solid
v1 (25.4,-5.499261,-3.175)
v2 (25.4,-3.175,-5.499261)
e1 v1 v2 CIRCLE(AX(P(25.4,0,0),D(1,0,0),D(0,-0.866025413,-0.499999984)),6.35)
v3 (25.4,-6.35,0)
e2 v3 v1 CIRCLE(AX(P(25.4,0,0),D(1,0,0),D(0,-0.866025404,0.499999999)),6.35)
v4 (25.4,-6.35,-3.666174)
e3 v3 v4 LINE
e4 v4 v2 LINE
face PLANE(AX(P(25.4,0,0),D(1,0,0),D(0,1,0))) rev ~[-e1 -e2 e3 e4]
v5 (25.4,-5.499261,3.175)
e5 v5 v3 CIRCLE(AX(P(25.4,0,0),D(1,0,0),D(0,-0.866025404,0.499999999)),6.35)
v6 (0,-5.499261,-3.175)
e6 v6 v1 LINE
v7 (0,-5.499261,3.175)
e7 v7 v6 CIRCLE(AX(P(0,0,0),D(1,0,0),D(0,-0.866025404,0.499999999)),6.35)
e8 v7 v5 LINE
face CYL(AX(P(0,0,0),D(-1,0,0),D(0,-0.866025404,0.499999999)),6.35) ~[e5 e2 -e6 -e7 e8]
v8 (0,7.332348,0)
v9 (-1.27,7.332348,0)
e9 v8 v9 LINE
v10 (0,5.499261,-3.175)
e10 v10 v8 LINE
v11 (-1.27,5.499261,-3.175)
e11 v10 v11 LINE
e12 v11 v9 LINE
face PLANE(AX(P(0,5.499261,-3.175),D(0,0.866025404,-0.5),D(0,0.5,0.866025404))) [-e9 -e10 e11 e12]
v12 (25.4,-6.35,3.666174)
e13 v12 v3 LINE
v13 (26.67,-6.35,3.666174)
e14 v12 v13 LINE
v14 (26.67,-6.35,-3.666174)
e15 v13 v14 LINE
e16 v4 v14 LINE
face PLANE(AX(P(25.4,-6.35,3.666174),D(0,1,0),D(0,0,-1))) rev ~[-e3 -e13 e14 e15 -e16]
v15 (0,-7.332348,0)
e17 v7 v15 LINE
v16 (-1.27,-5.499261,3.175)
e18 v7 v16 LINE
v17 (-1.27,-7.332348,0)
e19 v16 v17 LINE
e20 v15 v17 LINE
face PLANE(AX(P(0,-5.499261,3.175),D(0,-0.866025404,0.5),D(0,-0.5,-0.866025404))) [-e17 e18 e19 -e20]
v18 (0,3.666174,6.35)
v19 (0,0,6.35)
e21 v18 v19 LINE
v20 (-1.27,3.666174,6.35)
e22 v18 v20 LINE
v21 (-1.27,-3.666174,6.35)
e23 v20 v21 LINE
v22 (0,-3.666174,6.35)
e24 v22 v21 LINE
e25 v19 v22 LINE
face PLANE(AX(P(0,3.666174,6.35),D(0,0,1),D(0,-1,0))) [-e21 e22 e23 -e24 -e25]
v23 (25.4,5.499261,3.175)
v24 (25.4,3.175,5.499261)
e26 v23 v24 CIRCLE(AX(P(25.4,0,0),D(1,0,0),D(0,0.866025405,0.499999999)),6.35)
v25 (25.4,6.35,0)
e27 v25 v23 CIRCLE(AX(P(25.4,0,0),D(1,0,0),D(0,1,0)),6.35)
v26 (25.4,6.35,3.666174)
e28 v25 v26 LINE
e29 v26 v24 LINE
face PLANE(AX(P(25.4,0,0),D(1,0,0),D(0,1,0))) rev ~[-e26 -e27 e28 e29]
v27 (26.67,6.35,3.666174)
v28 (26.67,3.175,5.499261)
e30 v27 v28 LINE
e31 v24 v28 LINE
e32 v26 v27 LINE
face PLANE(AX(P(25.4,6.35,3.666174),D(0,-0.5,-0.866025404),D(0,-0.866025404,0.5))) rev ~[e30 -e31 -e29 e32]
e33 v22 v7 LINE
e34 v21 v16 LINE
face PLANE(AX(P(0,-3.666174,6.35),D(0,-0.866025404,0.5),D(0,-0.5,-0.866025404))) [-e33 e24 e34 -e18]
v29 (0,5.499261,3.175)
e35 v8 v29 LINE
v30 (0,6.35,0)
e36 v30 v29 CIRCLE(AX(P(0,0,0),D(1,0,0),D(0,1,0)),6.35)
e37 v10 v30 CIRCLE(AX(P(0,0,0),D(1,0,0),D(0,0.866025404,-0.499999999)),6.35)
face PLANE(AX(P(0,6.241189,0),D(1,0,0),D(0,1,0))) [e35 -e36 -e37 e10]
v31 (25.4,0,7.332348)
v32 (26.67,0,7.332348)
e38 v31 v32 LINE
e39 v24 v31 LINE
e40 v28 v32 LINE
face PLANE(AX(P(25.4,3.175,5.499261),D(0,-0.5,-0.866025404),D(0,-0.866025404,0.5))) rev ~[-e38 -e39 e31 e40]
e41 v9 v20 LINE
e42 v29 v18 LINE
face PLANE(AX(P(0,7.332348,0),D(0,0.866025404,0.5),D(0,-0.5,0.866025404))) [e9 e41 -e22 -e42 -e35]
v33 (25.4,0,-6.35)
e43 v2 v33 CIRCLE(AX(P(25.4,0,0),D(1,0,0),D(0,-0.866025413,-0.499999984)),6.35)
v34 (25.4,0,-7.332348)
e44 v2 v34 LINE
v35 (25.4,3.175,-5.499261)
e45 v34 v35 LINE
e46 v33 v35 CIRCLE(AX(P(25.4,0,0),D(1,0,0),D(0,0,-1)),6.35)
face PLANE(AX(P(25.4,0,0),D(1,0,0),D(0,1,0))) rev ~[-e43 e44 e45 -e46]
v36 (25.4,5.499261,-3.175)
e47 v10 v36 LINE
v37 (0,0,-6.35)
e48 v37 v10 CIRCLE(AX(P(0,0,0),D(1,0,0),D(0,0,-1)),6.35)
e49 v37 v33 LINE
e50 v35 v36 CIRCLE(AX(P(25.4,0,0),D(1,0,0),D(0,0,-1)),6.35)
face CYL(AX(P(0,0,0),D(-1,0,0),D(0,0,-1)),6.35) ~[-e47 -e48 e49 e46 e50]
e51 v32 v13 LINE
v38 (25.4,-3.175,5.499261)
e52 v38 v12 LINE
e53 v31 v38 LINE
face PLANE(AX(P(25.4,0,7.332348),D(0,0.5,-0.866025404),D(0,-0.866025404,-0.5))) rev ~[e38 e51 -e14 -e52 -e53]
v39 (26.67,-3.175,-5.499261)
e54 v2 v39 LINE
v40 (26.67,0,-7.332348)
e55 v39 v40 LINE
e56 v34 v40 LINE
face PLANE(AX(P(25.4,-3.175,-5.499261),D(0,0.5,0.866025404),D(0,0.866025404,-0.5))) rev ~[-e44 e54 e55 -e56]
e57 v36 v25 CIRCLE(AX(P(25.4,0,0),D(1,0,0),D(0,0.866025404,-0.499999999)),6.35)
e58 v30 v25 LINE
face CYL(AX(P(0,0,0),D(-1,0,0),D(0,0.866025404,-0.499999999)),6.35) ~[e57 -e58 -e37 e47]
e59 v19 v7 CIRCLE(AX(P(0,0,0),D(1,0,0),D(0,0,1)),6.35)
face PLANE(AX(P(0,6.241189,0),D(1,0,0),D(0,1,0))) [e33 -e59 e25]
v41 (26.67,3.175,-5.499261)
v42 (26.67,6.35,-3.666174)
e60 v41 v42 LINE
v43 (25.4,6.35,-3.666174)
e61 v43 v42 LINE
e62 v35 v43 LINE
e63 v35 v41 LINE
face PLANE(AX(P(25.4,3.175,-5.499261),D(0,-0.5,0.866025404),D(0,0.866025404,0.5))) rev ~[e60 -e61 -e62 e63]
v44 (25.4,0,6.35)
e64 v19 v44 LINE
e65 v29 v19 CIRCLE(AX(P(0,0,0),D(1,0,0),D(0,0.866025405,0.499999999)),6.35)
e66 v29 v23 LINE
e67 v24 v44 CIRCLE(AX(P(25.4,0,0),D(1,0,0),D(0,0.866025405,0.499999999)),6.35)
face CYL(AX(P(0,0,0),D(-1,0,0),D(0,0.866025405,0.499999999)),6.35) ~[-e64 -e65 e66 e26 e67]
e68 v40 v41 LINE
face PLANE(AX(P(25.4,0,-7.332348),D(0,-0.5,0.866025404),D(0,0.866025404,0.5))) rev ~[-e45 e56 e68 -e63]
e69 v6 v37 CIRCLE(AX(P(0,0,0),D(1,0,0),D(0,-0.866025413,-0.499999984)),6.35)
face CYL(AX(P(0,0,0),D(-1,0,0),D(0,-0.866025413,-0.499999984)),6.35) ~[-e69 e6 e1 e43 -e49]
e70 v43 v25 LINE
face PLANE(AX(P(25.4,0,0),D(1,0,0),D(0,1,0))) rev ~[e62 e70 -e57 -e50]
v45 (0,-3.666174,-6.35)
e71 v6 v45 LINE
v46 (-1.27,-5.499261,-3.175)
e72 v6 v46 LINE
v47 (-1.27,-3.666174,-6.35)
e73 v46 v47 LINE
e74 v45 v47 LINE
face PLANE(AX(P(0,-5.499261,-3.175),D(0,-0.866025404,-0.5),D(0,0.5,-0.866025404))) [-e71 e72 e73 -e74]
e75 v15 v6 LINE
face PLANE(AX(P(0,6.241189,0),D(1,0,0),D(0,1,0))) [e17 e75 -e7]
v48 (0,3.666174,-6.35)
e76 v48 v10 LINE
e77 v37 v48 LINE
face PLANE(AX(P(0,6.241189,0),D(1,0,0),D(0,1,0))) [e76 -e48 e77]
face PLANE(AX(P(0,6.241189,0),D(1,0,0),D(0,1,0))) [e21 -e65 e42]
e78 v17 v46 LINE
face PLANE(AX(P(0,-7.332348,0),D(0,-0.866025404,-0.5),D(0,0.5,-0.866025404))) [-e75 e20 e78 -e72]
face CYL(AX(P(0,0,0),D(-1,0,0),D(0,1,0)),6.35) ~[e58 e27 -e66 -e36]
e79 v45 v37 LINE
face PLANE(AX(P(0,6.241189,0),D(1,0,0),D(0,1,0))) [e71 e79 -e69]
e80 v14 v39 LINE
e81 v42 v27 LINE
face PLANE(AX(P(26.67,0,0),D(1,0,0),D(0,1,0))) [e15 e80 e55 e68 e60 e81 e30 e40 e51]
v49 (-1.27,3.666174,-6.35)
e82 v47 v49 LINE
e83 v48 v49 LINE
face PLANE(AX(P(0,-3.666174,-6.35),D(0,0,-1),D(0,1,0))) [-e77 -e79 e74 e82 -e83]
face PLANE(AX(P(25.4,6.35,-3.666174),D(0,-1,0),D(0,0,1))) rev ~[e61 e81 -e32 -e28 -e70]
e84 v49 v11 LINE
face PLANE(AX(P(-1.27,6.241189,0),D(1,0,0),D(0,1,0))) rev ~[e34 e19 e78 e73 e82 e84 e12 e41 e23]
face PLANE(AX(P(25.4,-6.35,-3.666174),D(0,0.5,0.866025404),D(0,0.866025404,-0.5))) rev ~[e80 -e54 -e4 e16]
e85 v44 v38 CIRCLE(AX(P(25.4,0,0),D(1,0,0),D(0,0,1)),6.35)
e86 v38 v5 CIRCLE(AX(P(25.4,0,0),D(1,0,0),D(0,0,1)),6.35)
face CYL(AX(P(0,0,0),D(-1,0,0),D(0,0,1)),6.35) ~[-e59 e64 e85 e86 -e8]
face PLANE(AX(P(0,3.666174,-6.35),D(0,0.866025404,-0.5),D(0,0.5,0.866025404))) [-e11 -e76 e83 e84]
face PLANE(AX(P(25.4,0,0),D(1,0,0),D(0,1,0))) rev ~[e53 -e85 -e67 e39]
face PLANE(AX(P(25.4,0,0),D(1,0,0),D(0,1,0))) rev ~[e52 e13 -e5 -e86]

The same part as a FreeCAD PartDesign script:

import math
import FreeCAD as App
import Part
import Sketcher
from FreeCAD import Vector
Q = App.Units.Quantity


def add_polygon(sketch, points):
    """Adds a closed chain of lines whose ends are joined by coincident constraints."""
    first, n = sketch.GeometryCount, len(points)
    for a, b in zip(points, points[1:] + points[:1]):
        sketch.addGeometry(Part.LineSegment(App.Vector(*a, 0), App.Vector(*b, 0)), False)
    for i in range(n):
        sketch.addConstraint(Sketcher.Constraint("Coincident", first + i, 2, first + (i + 1) % n, 1))

doc = App.newDocument("Part")
params = doc.addObject("Spreadsheet::Sheet", "Params")
for row, (alias, value) in enumerate([
    ("sketch1_radius", "0.25 in"),
    ("pad1_length", "1 in"),
    ("pad2_length", "0.05 in"),
    ("pad3_length", "0.05 in"),
], start=1):
    params.set(f"A{row}", alias)
    params.set(f"B{row}", "=" + value)
    params.setAlias(f"B{row}", alias)

body = doc.addObject("PartDesign::Body", "Body")

# Sketch on YZ plane
sketch1 = body.newObject("Sketcher::SketchObject", "Sketch")
sketch1.AttachmentSupport = (doc.getObject("YZ_Plane"), [""])
sketch1.MapMode = "FlatFace"
sketch1.addGeometry([
    Part.ArcOfCircle(Part.Circle(Vector(0, 0, 0), Vector(0, 0, 1), 6.4), math.radians(-30), math.radians(0)),  # 0
    Part.ArcOfCircle(Part.Circle(Vector(0, 0, 0), Vector(0, 0, 1), 6.3), math.radians(0), math.radians(30)),  # 1
    Part.ArcOfCircle(Part.Circle(Vector(0, 0, 0), Vector(0, 0, 1), 6.3), math.radians(30), math.radians(90)),  # 2
    Part.ArcOfCircle(Part.Circle(Vector(0, 0, 0), Vector(0, 0, 1), 6.3), math.radians(90), math.radians(150)),  # 3
    Part.ArcOfCircle(Part.Circle(Vector(0, 0, 0), Vector(0, 0, 1), 6.3), math.radians(150), math.radians(210)),  # 4
    Part.ArcOfCircle(Part.Circle(Vector(0, 0, 0), Vector(0, 0, 1), 6.3), math.radians(-150), math.radians(-90)),  # 5
    Part.ArcOfCircle(Part.Circle(Vector(0, 0, 0), Vector(0, 0, 1), 6.3), math.radians(-90), math.radians(-30)),  # 6
], False)
sketch1.addConstraint([
    Sketcher.Constraint("Tangent", 0, 2, 1, 1),
    Sketcher.Constraint("Tangent", 1, 2, 2, 1),
    Sketcher.Constraint("Tangent", 2, 2, 3, 1),
    Sketcher.Constraint("Tangent", 3, 2, 4, 1),
    Sketcher.Constraint("Tangent", 4, 2, 5, 1),
    Sketcher.Constraint("Tangent", 5, 2, 6, 1),
    Sketcher.Constraint("Tangent", 6, 2, 0, 1),
    Sketcher.Constraint("Coincident", 0, 3, -1, 1),
    Sketcher.Constraint("Coincident", 2, 3, -1, 1),
    Sketcher.Constraint("Coincident", 4, 3, -1, 1),
    Sketcher.Constraint("PointOnObject", 0, 2, -1),
    Sketcher.Constraint("PointOnObject", 2, 2, -2),
    Sketcher.Constraint("PointOnObject", 5, 2, -2),
    Sketcher.Constraint("Horizontal", 1, 2, 3, 2),
    Sketcher.Constraint("Horizontal", 4, 2, 6, 2),
    Sketcher.Constraint("Vertical", 3, 2, 4, 2),
    Sketcher.Constraint("Radius", 0, Q("0.25 in")),
    Sketcher.Constraint("DistanceY", 4, 2, 3, 2, Q("0.25 in")),
])
sketch1.setExpression("Constraints[16]", "Params.sketch1_radius")
pad1 = body.newObject("PartDesign::Pad", "Pad")
pad1.Profile = sketch1
pad1.setExpression("Length", "Params.pad1_length")

# Sketch on YZ plane
sketch2 = body.newObject("Sketcher::SketchObject", "Sketch001")
sketch2.AttachmentSupport = (doc.getObject("YZ_Plane"), [""])
sketch2.MapMode = "FlatFace"
sketch2.AttachmentOffset = App.Placement(Vector(0, 0, 1 * 25.4), App.Rotation())
add_polygon(sketch2, [(6.3, 3.7), (3.2, 5.5), (0, 7.3), (-6.3, 3.7), (-6.3, -3.7), (-3.2, -5.5), (0, -7.3), (3.2, -5.5), (6.3, -3.7)])  # lines 0-8
sketch2.addConstraint([
    Sketcher.Constraint("Vertical", 3),
    Sketcher.Constraint("Vertical", 8),
    Sketcher.Constraint("Symmetric", 0, 2, 4, 2, -1, 1),
    Sketcher.Constraint("Symmetric", 1, 2, 5, 2, -1, 1),
    Sketcher.Constraint("Symmetric", 2, 2, 7, 2, -1, 1),
    Sketcher.Constraint("Symmetric", 4, 2, 6, 2, -2),
    Sketcher.Constraint("PointOnObject", 1, 2, -2),
    Sketcher.Constraint("Parallel", 0, 1),
    Sketcher.Constraint("Parallel", 1, 4),
    Sketcher.Constraint("Parallel", 2, 6),
    Sketcher.Constraint("Equal", 0, 1),
    Sketcher.Constraint("Angle", 0, Q("150 deg")),
    Sketcher.Constraint("DistanceX", 2, 2, -1, 1, Q("0.25 in")),
    Sketcher.Constraint("DistanceY", 3, 2, 3, 1, 7.332348),
])
pad2 = body.newObject("PartDesign::Pad", "Pad001")
pad2.Profile = sketch2
pad2.setExpression("Length", "Params.pad2_length")

# Sketch on YZ plane
sketch3 = body.newObject("Sketcher::SketchObject", "Sketch002")
sketch3.AttachmentSupport = (doc.getObject("YZ_Plane"), [""])
sketch3.MapMode = "FlatFace"
add_polygon(sketch3, [(5.5, -3.2), (7.3, 0), (3.7, 6.3), (-3.7, 6.3), (-5.5, 3.2), (-7.3, 0), (-5.5, -3.2), (-3.7, -6.3), (3.7, -6.3)])  # lines 0-8
sketch3.addConstraint([
    Sketcher.Constraint("Horizontal", 2),
    Sketcher.Constraint("Horizontal", 7),
    Sketcher.Constraint("Symmetric", 0, 2, 4, 2, -1, 1),
    Sketcher.Constraint("Symmetric", 1, 2, 6, 2, -1, 1),
    Sketcher.Constraint("Symmetric", 3, 2, 8, 2, -1, 1),
    Sketcher.Constraint("Symmetric", 5, 2, 8, 2, -2),
    Sketcher.Constraint("PointOnObject", 0, 2, -1),
    Sketcher.Constraint("Parallel", 0, 3),
    Sketcher.Constraint("Parallel", 1, 5),
    Sketcher.Constraint("Parallel", 4, 8),
    Sketcher.Constraint("Equal", 0, 3),
    Sketcher.Constraint("Angle", 0, Q("60 deg")),
    Sketcher.Constraint("DistanceY", 6, 2, 2, 2, Q("0.5 in")),
    Sketcher.Constraint("DistanceX", 2, 2, 2, 1, 7.332348),
])
pad3 = body.newObject("PartDesign::Pad", "Pad002")
pad3.Profile = sketch3
pad3.setExpression("Length", "Params.pad3_length")
pad3.Reversed = True

doc.recompute()
